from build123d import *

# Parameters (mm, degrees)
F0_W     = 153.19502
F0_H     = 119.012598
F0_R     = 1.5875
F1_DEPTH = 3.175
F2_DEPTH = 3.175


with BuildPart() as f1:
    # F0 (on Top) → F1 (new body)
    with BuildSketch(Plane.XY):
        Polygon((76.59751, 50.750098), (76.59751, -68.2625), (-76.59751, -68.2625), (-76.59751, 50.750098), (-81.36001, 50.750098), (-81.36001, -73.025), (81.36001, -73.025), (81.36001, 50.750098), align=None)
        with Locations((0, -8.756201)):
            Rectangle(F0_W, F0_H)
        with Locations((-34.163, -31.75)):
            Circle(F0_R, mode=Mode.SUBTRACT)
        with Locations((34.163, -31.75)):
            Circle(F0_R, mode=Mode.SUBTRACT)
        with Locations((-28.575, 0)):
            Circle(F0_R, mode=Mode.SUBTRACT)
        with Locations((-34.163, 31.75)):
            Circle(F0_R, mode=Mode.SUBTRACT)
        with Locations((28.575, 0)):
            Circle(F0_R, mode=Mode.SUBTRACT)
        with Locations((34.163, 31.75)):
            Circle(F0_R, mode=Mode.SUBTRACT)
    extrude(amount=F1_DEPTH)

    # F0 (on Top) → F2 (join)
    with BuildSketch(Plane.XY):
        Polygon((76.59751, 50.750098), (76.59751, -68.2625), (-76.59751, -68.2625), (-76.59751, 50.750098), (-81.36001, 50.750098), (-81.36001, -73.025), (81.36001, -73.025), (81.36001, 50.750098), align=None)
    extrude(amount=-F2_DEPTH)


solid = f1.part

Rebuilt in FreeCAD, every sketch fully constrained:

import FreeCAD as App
import Part
import Sketcher
from FreeCAD import Vector
Q = App.Units.Quantity


def add_polygon(sketch, points):
    """Adds a closed chain of lines whose ends are joined by coincident constraints."""
    first, n = sketch.GeometryCount, len(points)
    for a, b in zip(points, points[1:] + points[:1]):
        sketch.addGeometry(Part.LineSegment(App.Vector(*a, 0), App.Vector(*b, 0)), False)
    for i in range(n):
        sketch.addConstraint(Sketcher.Constraint("Coincident", first + i, 2, first + (i + 1) % n, 1))

doc = App.newDocument("Part")
body = doc.addObject("PartDesign::Body", "Body")

# Sketch on XY plane
sketch1 = doc.addObject("Sketcher::SketchObject", "Sketch")
body.addObject(sketch1)
sketch1.AttachmentSupport = (doc.XY_Plane, [""])
sketch1.MapMode = "FlatFace"
add_polygon(sketch1, [(-81.4, 50.8), (-81.4, -73), (81.4, -73), (81.4, 50.8)])  # lines 0-3
sketch1.addGeometry(Part.Circle(Vector(-34.2, -31.8, 0), Vector(0, 0, 1), 1.6), False)  # 4
sketch1.addGeometry(Part.Circle(Vector(34.2, -31.8, 0), Vector(0, 0, 1), 1.6), False)  # 5
sketch1.addGeometry(Part.Circle(Vector(-28.6, 0, 0), Vector(0, 0, 1), 1.6), False)  # 6
sketch1.addGeometry(Part.Circle(Vector(-34.2, 31.8, 0), Vector(0, 0, 1), 1.6), False)  # 7
sketch1.addGeometry(Part.Circle(Vector(28.6, 0, 0), Vector(0, 0, 1), 1.6), False)  # 8
sketch1.addGeometry(Part.Circle(Vector(34.2, 31.8, 0), Vector(0, 0, 1), 1.6), False)  # 9
sketch1.addConstraint(Sketcher.Constraint("Vertical", 0))
sketch1.addConstraint(Sketcher.Constraint("Horizontal", 1))
sketch1.addConstraint(Sketcher.Constraint("Vertical", 2))
sketch1.addConstraint(Sketcher.Constraint("Horizontal", 3))
sketch1.addConstraint(Sketcher.Constraint("Equal", 4, 5))
sketch1.addConstraint(Sketcher.Constraint("Equal", 5, 6))
sketch1.addConstraint(Sketcher.Constraint("Equal", 6, 7))
sketch1.addConstraint(Sketcher.Constraint("Equal", 7, 8))
sketch1.addConstraint(Sketcher.Constraint("Equal", 8, 9))
sketch1.addConstraint(Sketcher.Constraint("Symmetric", 5, 3, 7, 3, -1, 1))
sketch1.addConstraint(Sketcher.Constraint("Symmetric", 6, 3, 8, 3, -1, 1))
sketch1.addConstraint(Sketcher.Constraint("Symmetric", 4, 3, 9, 3, -1, 1))
sketch1.addConstraint(Sketcher.Constraint("Symmetric", 4, 3, 5, 3, -2))
sketch1.addConstraint(Sketcher.Constraint("PointOnObject", 6, 3, -1))
sketch1.addConstraint(Sketcher.Constraint("Diameter", 4, Q("0.125 in")))
sketch1.addConstraint(Sketcher.Constraint("DistanceY", 4, 3, 7, 3, Q("2.5 in")))
sketch1.addConstraint(Sketcher.Constraint("DistanceX", 4, 3, 5, 3, Q("2.69 in")))
sketch1.addConstraint(Sketcher.Constraint("DistanceX", 4, 3, 6, 3, Q("0.22 in")))
sketch1.addConstraint(Sketcher.Constraint("DistanceX", 1, 1, 1, 2, Q("6.4063 in")))
sketch1.addConstraint(Sketcher.Constraint("DistanceY", 0, 2, -1, 1, Q("2.875 in")))
sketch1.addConstraint(Sketcher.Constraint("DistanceY", 0, 2, 0, 1, Q("123.775098 mm")))
sketch1.addConstraint(Sketcher.Constraint("DistanceX", 0, 2, -1, 1, Q("81.36001 mm")))
pad1 = doc.addObject("PartDesign::Pad", "Pad")
body.addObject(pad1)
pad1.Profile = sketch1
pad1.Length = Q("0.125 in")

# Sketch on XY plane
sketch2 = doc.addObject("Sketcher::SketchObject", "Sketch001")
body.addObject(sketch2)
sketch2.AttachmentSupport = (doc.XY_Plane, [""])
sketch2.MapMode = "FlatFace"
add_polygon(sketch2, [(76.6, 50.8), (76.6, -68.3), (-76.6, -68.3), (-76.6, 50.8), (-81.4, 50.8), (-81.4, -73), (81.4, -73), (81.4, 50.8)])  # lines 0-7
sketch2.addConstraint(Sketcher.Constraint("Vertical", 0))
sketch2.addConstraint(Sketcher.Constraint("Horizontal", 1))
sketch2.addConstraint(Sketcher.Constraint("Vertical", 2))
sketch2.addConstraint(Sketcher.Constraint("Horizontal", 3))
sketch2.addConstraint(Sketcher.Constraint("Vertical", 4))
sketch2.addConstraint(Sketcher.Constraint("Horizontal", 5))
sketch2.addConstraint(Sketcher.Constraint("Vertical", 6))
sketch2.addConstraint(Sketcher.Constraint("Horizontal", 7))
sketch2.addConstraint(Sketcher.Constraint("Symmetric", 3, 2, 6, 2, -2))
sketch2.addConstraint(Sketcher.Constraint("Equal", 3, 7))
sketch2.addConstraint(Sketcher.Constraint("DistanceX", 3, 2, 3, 1, Q("0.1875 in")))
sketch2.addConstraint(Sketcher.Constraint("DistanceX", 1, 2, 1, 1, Q("6.0313 in")))
sketch2.addConstraint(Sketcher.Constraint("DistanceY", 0, 2, -1, 1, Q("2.6875 in")))
sketch2.addConstraint(Sketcher.Constraint("DistanceY", 4, 2, -1, 1, Q("2.875 in")))
sketch2.addConstraint(Sketcher.Constraint("DistanceY", 4, 2, 4, 1, Q("123.775098 mm")))
pad2 = doc.addObject("PartDesign::Pad", "Pad001")
body.addObject(pad2)
pad2.Profile = sketch2
pad2.Length = Q("0.125 in")
pad2.Reversed = True

doc.recompute()
